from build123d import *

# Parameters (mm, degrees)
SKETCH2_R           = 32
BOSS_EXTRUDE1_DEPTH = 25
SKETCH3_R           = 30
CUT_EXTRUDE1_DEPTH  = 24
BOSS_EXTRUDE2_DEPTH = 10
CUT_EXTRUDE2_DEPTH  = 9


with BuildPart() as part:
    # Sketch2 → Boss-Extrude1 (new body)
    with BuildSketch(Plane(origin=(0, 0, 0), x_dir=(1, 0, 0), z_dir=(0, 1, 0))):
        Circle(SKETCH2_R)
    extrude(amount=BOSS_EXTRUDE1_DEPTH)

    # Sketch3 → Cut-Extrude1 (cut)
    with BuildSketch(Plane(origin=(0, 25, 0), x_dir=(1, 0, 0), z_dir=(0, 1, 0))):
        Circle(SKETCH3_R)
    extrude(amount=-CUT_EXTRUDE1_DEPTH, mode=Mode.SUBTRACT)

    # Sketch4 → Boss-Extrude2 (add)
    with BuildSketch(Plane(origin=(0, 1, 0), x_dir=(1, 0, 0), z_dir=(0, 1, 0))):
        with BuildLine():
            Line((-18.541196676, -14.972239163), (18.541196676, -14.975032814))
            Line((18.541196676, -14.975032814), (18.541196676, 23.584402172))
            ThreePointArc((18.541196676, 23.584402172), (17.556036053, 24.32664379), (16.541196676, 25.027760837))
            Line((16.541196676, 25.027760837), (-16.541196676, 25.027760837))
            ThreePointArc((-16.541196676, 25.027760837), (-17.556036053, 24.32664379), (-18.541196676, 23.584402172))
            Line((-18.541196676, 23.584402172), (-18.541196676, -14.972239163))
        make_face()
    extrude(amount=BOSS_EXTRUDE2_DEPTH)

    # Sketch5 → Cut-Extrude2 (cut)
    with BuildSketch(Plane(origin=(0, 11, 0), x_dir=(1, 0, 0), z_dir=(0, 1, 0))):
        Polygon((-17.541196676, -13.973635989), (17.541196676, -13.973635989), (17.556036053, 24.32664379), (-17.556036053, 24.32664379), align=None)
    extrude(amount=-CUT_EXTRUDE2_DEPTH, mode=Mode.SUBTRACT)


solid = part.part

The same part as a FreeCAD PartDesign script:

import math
import FreeCAD as App
import Part
import Sketcher

V = App.Vector
Q = App.Units.Quantity


def add_polygon(sketch, points):
    """Adds a closed chain of lines whose ends are joined by coincident constraints."""
    first, n = sketch.GeometryCount, len(points)
    for a, b in zip(points, points[1:] + points[:1]):
        sketch.addGeometry(Part.LineSegment(App.Vector(*a, 0), App.Vector(*b, 0)), False)
    for i in range(n):
        sketch.addConstraint(Sketcher.Constraint("Coincident", first + i, 2, first + (i + 1) % n, 1))

doc = App.newDocument("Part")
params = doc.addObject("Spreadsheet::Sheet", "Params")
for row, (alias, value) in enumerate([
    ("sketch1_diameter", "64 mm"),
    ("pad1_length", "25 mm"),
    ("sketch2_diameter", "60 mm"),
    ("pocket1_length", "24 mm"),
    ("sketch3_radius", "30 mm"),
    ("pad2_length", "10 mm"),
    ("pocket2_length", "9 mm"),
], start=1):
    params.set(f"A{row}", alias)
    params.set(f"B{row}", "=" + value)
    params.setAlias(f"B{row}", alias)

body = doc.addObject("PartDesign::Body", "Body")

sketch1 = body.newObject("Sketcher::SketchObject", "Sketch")
sketch1.AttachmentSupport = (doc.getObject("XZ_Plane"), [""])
sketch1.MapMode = "FlatFace"
sketch1.addGeometry(Part.Circle(V(0, 0, 0), V(0, 0, 1), 32), False)
sketch1.addConstraint(Sketcher.Constraint("Coincident", 0, 3, -1, 1))
sketch1.addConstraint(Sketcher.Constraint("Diameter", 0, Q("64 mm")))
sketch1.setExpression("Constraints[1]", "Params.sketch1_diameter")
pad1 = body.newObject("PartDesign::Pad", "Pad")
pad1.Profile = sketch1
pad1.setExpression("Length", "Params.pad1_length")
pad1.Reversed = True

sketch2 = body.newObject("Sketcher::SketchObject", "Sketch001")
sketch2.AttachmentSupport = (doc.getObject("XZ_Plane"), [""])
sketch2.MapMode = "FlatFace"
sketch2.AttachmentOffset = App.Placement(V(0, 0, -25), App.Rotation())
sketch2.addGeometry(Part.Circle(V(0, 0, 0), V(0, 0, 1), 30), False)
sketch2.addConstraint(Sketcher.Constraint("Coincident", 0, 3, -1, 1))
sketch2.addConstraint(Sketcher.Constraint("Diameter", 0, Q("60 mm")))
sketch2.setExpression("Constraints[1]", "Params.sketch2_diameter")
pocket1 = body.newObject("PartDesign::Pocket", "Pocket")
pocket1.Profile = sketch2
pocket1.setExpression("Length", "Params.pocket1_length")
pocket1.Reversed = True

sketch3 = body.newObject("Sketcher::SketchObject", "Sketch002")
sketch3.AttachmentSupport = (doc.getObject("XZ_Plane"), [""])
sketch3.MapMode = "FlatFace"
sketch3.AttachmentOffset = App.Placement(V(0, 0, -1), App.Rotation())
sketch3.addGeometry(Part.LineSegment(V(-18.5, 15, 0), V(18.5, 15, 0)), False)
sketch3.addGeometry(Part.LineSegment(V(18.5, 15, 0), V(18.5, -23.6, 0)), False)
sketch3.addGeometry(Part.ArcOfCircle(Part.Circle(V(0, 0, 0), V(0, 0, 1), 30), math.radians(-56.54), math.radians(-51.83)), False)
sketch3.addGeometry(Part.LineSegment(V(16.5, -25, 0), V(-16.5, -25, 0)), False)
sketch3.addGeometry(Part.ArcOfCircle(Part.Circle(V(0, 0, 0), V(0, 0, 1), 30), math.radians(-128.17), math.radians(-123.46)), False)
sketch3.addGeometry(Part.LineSegment(V(-18.5, -23.6, 0), V(-18.5, 15, 0)), False)
sketch3.addConstraint(Sketcher.Constraint("Coincident", 0, 2, 1, 1))
sketch3.addConstraint(Sketcher.Constraint("Coincident", 1, 2, 2, 2))
sketch3.addConstraint(Sketcher.Constraint("Coincident", 2, 1, 3, 1))
sketch3.addConstraint(Sketcher.Constraint("Coincident", 3, 2, 4, 2))
sketch3.addConstraint(Sketcher.Constraint("Coincident", 4, 1, 5, 1))
sketch3.addConstraint(Sketcher.Constraint("Coincident", 5, 2, 0, 1))
sketch3.addConstraint(Sketcher.Constraint("Vertical", 1))
sketch3.addConstraint(Sketcher.Constraint("Horizontal", 3))
sketch3.addConstraint(Sketcher.Constraint("Vertical", 5))
sketch3.addConstraint(Sketcher.Constraint("Coincident", 2, 3, -1, 1))
sketch3.addConstraint(Sketcher.Constraint("Coincident", 4, 3, -1, 1))
sketch3.addConstraint(Sketcher.Constraint("Equal", 2, 4))
sketch3.addConstraint(Sketcher.Constraint("Horizontal", 1, 2, 4, 1))
sketch3.addConstraint(Sketcher.Constraint("Radius", 2, Q("30 mm")))
sketch3.addConstraint(Sketcher.Constraint("DistanceX", 2, 1, 1, 2, Q("2 mm")))
sketch3.addConstraint(Sketcher.Constraint("DistanceY", 3, 2, 5, 2, Q("40 mm")))
sketch3.addConstraint(Sketcher.Constraint("DistanceY", 5, 1, 5, 2, Q("38.556641 mm")))
sketch3.addConstraint(Sketcher.Constraint("DistanceY", 1, 2, 1, 1, Q("38.559435 mm")))
sketch3.setExpression("Constraints[13]", "Params.sketch3_radius")
pad2 = body.newObject("PartDesign::Pad", "Pad001")
pad2.Profile = sketch3
pad2.setExpression("Length", "Params.pad2_length")
pad2.Reversed = True

sketch4 = body.newObject("Sketcher::SketchObject", "Sketch003")
sketch4.AttachmentSupport = (doc.getObject("XZ_Plane"), [""])
sketch4.MapMode = "FlatFace"
sketch4.AttachmentOffset = App.Placement(V(0, 0, -11), App.Rotation())
add_polygon(sketch4, [(-18, 14), (18, 14), (18, -24), (-18, -24)])
sketch4.addConstraint(Sketcher.Constraint("Horizontal", 0))
sketch4.addConstraint(Sketcher.Constraint("Horizontal", 2))
sketch4.addConstraint(Sketcher.Constraint("DistanceX", 0, 1, 0, 2, Q("35.082393 mm")))
sketch4.addConstraint(Sketcher.Constraint("DistanceX", 2, 2, 2, 1, Q("35.112072 mm")))
sketch4.addConstraint(Sketcher.Constraint("DistanceX", 0, 2, 1, 2, Q("0.014839 mm")))
sketch4.addConstraint(Sketcher.Constraint("DistanceY", 1, 2, 0, 2, Q("38.30028 mm")))
sketch4.addConstraint(Sketcher.Constraint("DistanceX", -1, 1, 0, 2, Q("17.541197 mm")))
sketch4.addConstraint(Sketcher.Constraint("DistanceY", -1, 1, 0, 2, Q("13.973636 mm")))
pocket2 = body.newObject("PartDesign::Pocket", "Pocket001")
pocket2.Profile = sketch4
pocket2.setExpression("Length", "Params.pocket2_length")
pocket2.Reversed = True

doc.recompute()
